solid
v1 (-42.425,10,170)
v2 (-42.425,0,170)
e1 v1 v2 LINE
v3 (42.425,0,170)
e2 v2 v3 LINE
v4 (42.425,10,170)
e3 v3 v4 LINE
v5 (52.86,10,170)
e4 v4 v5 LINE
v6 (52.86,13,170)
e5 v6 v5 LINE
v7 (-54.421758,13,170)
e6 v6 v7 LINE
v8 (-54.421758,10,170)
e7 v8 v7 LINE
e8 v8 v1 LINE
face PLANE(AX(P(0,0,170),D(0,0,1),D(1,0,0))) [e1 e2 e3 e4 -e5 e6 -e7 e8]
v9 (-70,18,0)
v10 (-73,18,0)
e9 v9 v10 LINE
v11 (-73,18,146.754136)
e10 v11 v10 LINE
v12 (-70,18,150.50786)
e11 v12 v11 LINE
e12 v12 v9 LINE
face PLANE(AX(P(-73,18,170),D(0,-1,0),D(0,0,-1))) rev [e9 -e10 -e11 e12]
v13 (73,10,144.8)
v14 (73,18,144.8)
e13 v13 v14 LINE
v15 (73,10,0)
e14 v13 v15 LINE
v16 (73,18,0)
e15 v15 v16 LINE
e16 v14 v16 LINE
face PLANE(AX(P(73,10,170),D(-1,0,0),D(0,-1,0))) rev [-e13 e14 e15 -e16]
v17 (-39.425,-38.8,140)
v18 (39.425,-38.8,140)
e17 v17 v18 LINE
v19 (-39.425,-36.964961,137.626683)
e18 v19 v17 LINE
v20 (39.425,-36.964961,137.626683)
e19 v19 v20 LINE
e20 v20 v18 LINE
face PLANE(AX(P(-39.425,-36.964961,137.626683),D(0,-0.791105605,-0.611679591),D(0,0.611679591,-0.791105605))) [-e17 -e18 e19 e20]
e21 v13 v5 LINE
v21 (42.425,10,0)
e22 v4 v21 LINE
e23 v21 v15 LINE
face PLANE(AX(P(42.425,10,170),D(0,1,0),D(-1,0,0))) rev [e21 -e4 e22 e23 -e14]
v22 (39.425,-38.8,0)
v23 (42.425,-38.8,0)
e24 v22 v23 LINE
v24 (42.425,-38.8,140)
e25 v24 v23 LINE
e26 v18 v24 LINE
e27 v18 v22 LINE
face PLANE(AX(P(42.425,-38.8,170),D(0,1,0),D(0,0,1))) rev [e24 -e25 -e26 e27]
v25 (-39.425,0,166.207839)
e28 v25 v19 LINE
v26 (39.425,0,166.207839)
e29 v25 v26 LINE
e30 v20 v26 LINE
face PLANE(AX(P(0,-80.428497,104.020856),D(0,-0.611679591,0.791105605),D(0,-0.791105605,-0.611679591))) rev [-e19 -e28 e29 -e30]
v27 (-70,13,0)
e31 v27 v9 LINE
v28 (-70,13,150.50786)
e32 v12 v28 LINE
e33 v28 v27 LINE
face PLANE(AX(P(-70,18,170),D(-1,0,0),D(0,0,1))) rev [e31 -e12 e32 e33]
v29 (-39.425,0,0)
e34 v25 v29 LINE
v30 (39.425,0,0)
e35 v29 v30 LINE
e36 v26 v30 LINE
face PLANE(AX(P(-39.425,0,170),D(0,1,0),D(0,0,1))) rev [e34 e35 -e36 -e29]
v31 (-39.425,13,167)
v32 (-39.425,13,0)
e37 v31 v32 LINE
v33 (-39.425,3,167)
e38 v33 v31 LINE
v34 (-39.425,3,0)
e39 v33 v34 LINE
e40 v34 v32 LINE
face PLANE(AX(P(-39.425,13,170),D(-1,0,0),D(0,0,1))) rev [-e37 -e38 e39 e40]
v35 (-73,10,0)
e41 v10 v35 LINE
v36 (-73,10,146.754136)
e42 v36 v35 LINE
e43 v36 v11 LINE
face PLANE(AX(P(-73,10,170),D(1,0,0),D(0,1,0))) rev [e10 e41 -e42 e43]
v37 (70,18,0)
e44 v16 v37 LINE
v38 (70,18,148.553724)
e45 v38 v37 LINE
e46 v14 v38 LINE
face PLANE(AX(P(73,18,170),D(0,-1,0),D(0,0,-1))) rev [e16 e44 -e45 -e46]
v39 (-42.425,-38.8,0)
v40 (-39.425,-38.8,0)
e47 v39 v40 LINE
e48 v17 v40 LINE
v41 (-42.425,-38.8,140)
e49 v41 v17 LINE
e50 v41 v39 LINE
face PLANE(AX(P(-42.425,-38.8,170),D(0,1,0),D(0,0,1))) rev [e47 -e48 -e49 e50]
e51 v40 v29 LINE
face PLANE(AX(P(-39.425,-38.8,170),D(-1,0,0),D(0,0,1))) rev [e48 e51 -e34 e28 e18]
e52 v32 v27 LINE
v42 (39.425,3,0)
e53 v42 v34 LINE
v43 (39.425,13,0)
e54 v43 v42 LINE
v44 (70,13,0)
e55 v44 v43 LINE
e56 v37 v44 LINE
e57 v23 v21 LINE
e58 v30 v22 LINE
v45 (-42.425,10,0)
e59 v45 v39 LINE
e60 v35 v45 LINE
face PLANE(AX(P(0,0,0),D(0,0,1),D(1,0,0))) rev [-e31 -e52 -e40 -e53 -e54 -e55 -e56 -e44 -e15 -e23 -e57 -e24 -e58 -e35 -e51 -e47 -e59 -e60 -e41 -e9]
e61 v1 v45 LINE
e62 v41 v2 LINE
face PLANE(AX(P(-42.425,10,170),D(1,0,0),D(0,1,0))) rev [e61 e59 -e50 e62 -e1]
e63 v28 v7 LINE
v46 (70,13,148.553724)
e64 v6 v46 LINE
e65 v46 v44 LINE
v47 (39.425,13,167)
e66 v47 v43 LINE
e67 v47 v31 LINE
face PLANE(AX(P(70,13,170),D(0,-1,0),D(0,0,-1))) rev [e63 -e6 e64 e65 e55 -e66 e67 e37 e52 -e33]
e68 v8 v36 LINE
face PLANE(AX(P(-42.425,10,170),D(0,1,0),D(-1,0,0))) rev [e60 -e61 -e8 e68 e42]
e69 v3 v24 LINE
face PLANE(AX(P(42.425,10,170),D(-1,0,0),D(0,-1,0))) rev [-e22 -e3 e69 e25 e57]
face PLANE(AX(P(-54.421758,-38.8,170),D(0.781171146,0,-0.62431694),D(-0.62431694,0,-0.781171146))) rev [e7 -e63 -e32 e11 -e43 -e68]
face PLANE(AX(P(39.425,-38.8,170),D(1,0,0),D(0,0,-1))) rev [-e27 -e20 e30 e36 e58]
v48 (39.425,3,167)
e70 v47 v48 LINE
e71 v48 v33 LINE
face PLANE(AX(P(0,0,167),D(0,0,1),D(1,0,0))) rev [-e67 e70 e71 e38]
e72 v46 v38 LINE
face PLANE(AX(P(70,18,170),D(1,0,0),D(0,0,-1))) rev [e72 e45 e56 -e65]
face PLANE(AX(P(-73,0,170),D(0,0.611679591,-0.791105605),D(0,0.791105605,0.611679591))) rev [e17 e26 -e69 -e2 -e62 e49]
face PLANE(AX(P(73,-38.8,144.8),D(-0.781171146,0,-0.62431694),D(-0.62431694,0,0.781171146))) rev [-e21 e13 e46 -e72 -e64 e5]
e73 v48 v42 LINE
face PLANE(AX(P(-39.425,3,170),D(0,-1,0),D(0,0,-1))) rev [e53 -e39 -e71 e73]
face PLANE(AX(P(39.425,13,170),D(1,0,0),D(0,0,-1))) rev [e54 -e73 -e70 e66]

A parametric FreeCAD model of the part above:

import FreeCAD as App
import Part
import Sketcher
from FreeCAD import Vector

doc = App.newDocument("Part")
body = doc.addObject("PartDesign::Body", "Body")

sketch1 = doc.addObject("Sketcher::SketchObject", "Sketch")
body.addObject(sketch1)
sketch1.AttachmentSupport = (doc.XY_Plane, [""])
sketch1.MapMode = "FlatFace"
sketch1.addGeometry([
    Part.LineSegment(Vector(-39.425, 0, 0), Vector(39.425, 0, 0)),
    Part.LineSegment(Vector(39.425, 0, 0), Vector(39.425, -38.8, 0)),
    Part.LineSegment(Vector(39.425, -38.8, 0), Vector(42.425, -38.8, 0)),
    Part.LineSegment(Vector(42.425, -38.8, 0), Vector(42.425, 10, 0)),
    Part.LineSegment(Vector(42.425, 10, 0), Vector(73, 10, 0)),
    Part.LineSegment(Vector(73, 10, 0), Vector(73, 18, 0)),
    Part.LineSegment(Vector(73, 18, 0), Vector(70, 18, 0)),
    Part.LineSegment(Vector(70, 18, 0), Vector(70, 13, 0)),
    Part.LineSegment(Vector(70, 13, 0), Vector(39.425, 13, 0)),
    Part.LineSegment(Vector(39.425, 13, 0), Vector(39.425, 3, 0)),
    Part.LineSegment(Vector(39.425, 3, 0), Vector(-39.425, 3, 0)),
    Part.LineSegment(Vector(-39.425, 3, 0), Vector(-39.425, 13, 0)),
    Part.LineSegment(Vector(-39.425, 13, 0), Vector(-70, 13, 0)),
    Part.LineSegment(Vector(-70, 13, 0), Vector(-70, 18, 0)),
    Part.LineSegment(Vector(-70, 18, 0), Vector(-73, 18, 0)),
    Part.LineSegment(Vector(-73, 18, 0), Vector(-73, 10, 0)),
    Part.LineSegment(Vector(-73, 10, 0), Vector(-42.425, 10, 0)),
    Part.LineSegment(Vector(-42.425, 10, 0), Vector(-42.425, -38.8, 0)),
    Part.LineSegment(Vector(-42.425, -38.8, 0), Vector(-39.425, -38.8, 0)),
    Part.LineSegment(Vector(-39.425, -38.8, 0), Vector(-39.425, 0, 0)),
], False)
sketch1.addConstraint([
    Sketcher.Constraint("Coincident", 0, 2, 1, 1),
    Sketcher.Constraint("Coincident", 1, 2, 2, 1),
    Sketcher.Constraint("Coincident", 2, 2, 3, 1),
    Sketcher.Constraint("Coincident", 3, 2, 4, 1),
    Sketcher.Constraint("Coincident", 4, 2, 5, 1),
    Sketcher.Constraint("Coincident", 5, 2, 6, 1),
    Sketcher.Constraint("Coincident", 6, 2, 7, 1),
    Sketcher.Constraint("Coincident", 7, 2, 8, 1),
    Sketcher.Constraint("Coincident", 8, 2, 9, 1),
    Sketcher.Constraint("Coincident", 9, 2, 10, 1),
    Sketcher.Constraint("Coincident", 10, 2, 11, 1),
    Sketcher.Constraint("Coincident", 11, 2, 12, 1),
    Sketcher.Constraint("Coincident", 12, 2, 13, 1),
    Sketcher.Constraint("Coincident", 13, 2, 14, 1),
    Sketcher.Constraint("Coincident", 14, 2, 15, 1),
    Sketcher.Constraint("Coincident", 15, 2, 16, 1),
    Sketcher.Constraint("Coincident", 16, 2, 17, 1),
    Sketcher.Constraint("Coincident", 17, 2, 18, 1),
    Sketcher.Constraint("Coincident", 18, 2, 19, 1),
    Sketcher.Constraint("Coincident", 19, 2, 0, 1),
    Sketcher.Constraint("Horizontal", 0),
    Sketcher.Constraint("Vertical", 1),
    Sketcher.Constraint("Horizontal", 2),
    Sketcher.Constraint("Vertical", 3),
    Sketcher.Constraint("Horizontal", 4),
    Sketcher.Constraint("Vertical", 5),
    Sketcher.Constraint("Horizontal", 6),
    Sketcher.Constraint("Vertical", 7),
    Sketcher.Constraint("Horizontal", 8),
    Sketcher.Constraint("Vertical", 9),
    Sketcher.Constraint("Horizontal", 10),
    Sketcher.Constraint("Vertical", 11),
    Sketcher.Constraint("Horizontal", 12),
    Sketcher.Constraint("Vertical", 13),
    Sketcher.Constraint("Horizontal", 14),
    Sketcher.Constraint("Vertical", 15),
    Sketcher.Constraint("Horizontal", 16),
    Sketcher.Constraint("Vertical", 17),
    Sketcher.Constraint("Horizontal", 18),
    Sketcher.Constraint("Vertical", 19),
    Sketcher.Constraint("Symmetric", 0, 2, 19, 2, -1, 1),
    Sketcher.Constraint("Symmetric", 8, 2, 11, 2, -2),
    Sketcher.Constraint("Symmetric", 6, 2, 13, 2, -2),
    Sketcher.Constraint("Symmetric", 4, 2, 15, 2, -2),
    Sketcher.Constraint("Symmetric", 2, 2, 17, 2, -2),
    Sketcher.Constraint("Vertical", 1, 2, 8, 2),
    Sketcher.Constraint("Equal", 2, 6),
    Sketcher.Constraint("DistanceX", 2, 1, 2, 2, 3.0),
    Sketcher.Constraint("DistanceY", 5, 1, 5, 2, 8.0),
    Sketcher.Constraint("DistanceY", 7, 2, 7, 1, 5.0),
    Sketcher.Constraint("DistanceY", 9, 2, 9, 1, 10.0),
    Sketcher.Constraint("DistanceY", 1, 2, 1, 1, 38.8),
    Sketcher.Constraint("DistanceY", 3, 1, 3, 2, 48.8),
    Sketcher.Constraint("DistanceX", -1, 1, 4, 2, 73.0),
    Sketcher.Constraint("DistanceX", 0, 1, 0, 2, 78.85),
])
pad1 = doc.addObject("PartDesign::Pad", "Pad")
body.addObject(pad1)
pad1.Profile = sketch1
pad1.Length = 170

sketch2 = doc.addObject("Sketcher::SketchObject", "Sketch001")
body.addObject(sketch2)
sketch2.AttachmentSupport = (doc.YZ_Plane, [""])
sketch2.MapMode = "FlatFace"
sketch2.addGeometry([
    Part.LineSegment(Vector(0, 170, 0), Vector(-38.8, 170, 0)),
    Part.LineSegment(Vector(-38.8, 170, 0), Vector(-38.8, 140, 0)),
    Part.LineSegment(Vector(-38.8, 140, 0), Vector(0, 170, 0)),
], False)
sketch2.addConstraint([
    Sketcher.Constraint("Coincident", 0, 2, 1, 1),
    Sketcher.Constraint("Coincident", 1, 2, 2, 1),
    Sketcher.Constraint("Coincident", 2, 2, 0, 1),
    Sketcher.Constraint("Horizontal", 0),
    Sketcher.Constraint("Vertical", 1),
    Sketcher.Constraint("PointOnObject", 2, 2, -2),
    Sketcher.Constraint("DistanceY", 1, 2, 1, 1, 30.0),
    Sketcher.Constraint("DistanceX", 0, 2, 0, 1, 38.8),
    Sketcher.Constraint("DistanceY", -1, 1, 0, 2, 170.0),
])
pocket1 = doc.addObject("PartDesign::Pocket", "Pocket")
body.addObject(pocket1)
pocket1.Profile = sketch2
pocket1.Type = "ThroughAll"
pocket1.Midplane = True

sketch3 = doc.addObject("Sketcher::SketchObject", "Sketch002")
body.addObject(sketch3)
sketch3.Placement = App.Placement(Vector(0, -82.263536, 106.394173), App.Rotation(Vector(1, 0, 0), Vector(0, 0.791105605, 0.611679591), Vector(0, -0.611679591, 0.791105605), "ZXY"))
sketch3.addGeometry([
    Part.LineSegment(Vector(-39.425, 103.985531, 0), Vector(-39.425, 54.940245, 0)),
    Part.LineSegment(Vector(-39.425, 54.940245, 0), Vector(39.425, 54.940245, 0)),
    Part.LineSegment(Vector(39.425, 54.940245, 0), Vector(39.425, 103.985531, 0)),
    Part.LineSegment(Vector(39.425, 103.985531, 0), Vector(-39.425, 103.985531, 0)),
], False)
sketch3.addConstraint([
    Sketcher.Constraint("Coincident", 0, 2, 1, 1),
    Sketcher.Constraint("Coincident", 1, 2, 2, 1),
    Sketcher.Constraint("Coincident", 2, 2, 3, 1),
    Sketcher.Constraint("Coincident", 3, 2, 0, 1),
    Sketcher.Constraint("Vertical", 0),
    Sketcher.Constraint("Horizontal", 1),
    Sketcher.Constraint("Vertical", 2),
    Sketcher.Constraint("Horizontal", 3),
    Sketcher.Constraint("DistanceX", 1, 1, 1, 2, 78.85),
    Sketcher.Constraint("DistanceX", 0, 2, -1, 1, 39.425),
    Sketcher.Constraint("DistanceY", 0, 2, 0, 1, 49.045285),
    Sketcher.Constraint("DistanceY", -1, 1, 2, 2, 103.985531),
])
pad2 = doc.addObject("PartDesign::Pad", "Pad001")
body.addObject(pad2)
pad2.Profile = sketch3
pad2.Length = 3
pad2.Reversed = True

sketch4 = doc.addObject("Sketcher::SketchObject", "Sketch003")
body.addObject(sketch4)
sketch4.AttachmentSupport = (doc.XZ_Plane, [""])
sketch4.MapMode = "FlatFace"
sketch4.addGeometry([
    Part.LineSegment(Vector(-73, 146.754136, 0), Vector(-73, 170, 0)),
    Part.LineSegment(Vector(-73, 170, 0), Vector(-54.421758, 170, 0)),
    Part.LineSegment(Vector(-54.421758, 170, 0), Vector(-73, 146.754136, 0)),
    Part.LineSegment(Vector(52.86, 170, 0), Vector(73, 170, 0)),
    Part.LineSegment(Vector(73, 170, 0), Vector(73, 144.8, 0)),
    Part.LineSegment(Vector(73, 144.8, 0), Vector(52.86, 170, 0)),
], False)
sketch4.addConstraint([
    Sketcher.Constraint("Coincident", 0, 2, 1, 1),
    Sketcher.Constraint("Coincident", 1, 2, 2, 1),
    Sketcher.Constraint("Coincident", 2, 2, 0, 1),
    Sketcher.Constraint("Coincident", 3, 2, 4, 1),
    Sketcher.Constraint("Coincident", 4, 2, 5, 1),
    Sketcher.Constraint("Coincident", 5, 2, 3, 1),
    Sketcher.Constraint("Vertical", 0),
    Sketcher.Constraint("Horizontal", 1),
    Sketcher.Constraint("Horizontal", 3),
    Sketcher.Constraint("Vertical", 4),
    Sketcher.Constraint("Symmetric", 0, 2, 3, 2, -2),
    Sketcher.Constraint("DistanceY", 4, 2, 4, 1, 25.2),
    Sketcher.Constraint("DistanceX", 0, 2, -1, 1, 73.0),
    Sketcher.Constraint("DistanceY", -1, 1, 0, 2, 170.0),
    Sketcher.Constraint("DistanceX", 3, 1, 3, 2, 20.14),
    Sketcher.Constraint("Distance", 2, 29.75771),
    Sketcher.Constraint("DistanceX", 1, 1, 1, 2, 18.578242),
])
pocket2 = doc.addObject("PartDesign::Pocket", "Pocket001")
body.addObject(pocket2)
pocket2.Profile = sketch4
pocket2.Type = "ThroughAll"
pocket2.Midplane = True

sketch5 = doc.addObject("Sketcher::SketchObject", "Sketch004")
body.addObject(sketch5)
sketch5.AttachmentSupport = (doc.XY_Plane, [""])
sketch5.MapMode = "FlatFace"
sketch5.AttachmentOffset = App.Placement(Vector(0, 0, 170), App.Rotation())
sketch5.addGeometry([
    Part.LineSegment(Vector(-42.425, 13, 0), Vector(-42.425, 0, 0)),
    Part.LineSegment(Vector(-42.425, 0, 0), Vector(42.425, 0, 0)),
    Part.LineSegment(Vector(42.425, 0, 0), Vector(42.425, 13, 0)),
    Part.LineSegment(Vector(42.425, 13, 0), Vector(-42.425, 13, 0)),
], False)
sketch5.addConstraint([
    Sketcher.Constraint("Coincident", 0, 2, 1, 1),
    Sketcher.Constraint("Coincident", 1, 2, 2, 1),
    Sketcher.Constraint("Coincident", 2, 2, 3, 1),
    Sketcher.Constraint("Coincident", 3, 2, 0, 1),
    Sketcher.Constraint("Vertical", 0),
    Sketcher.Constraint("Horizontal", 1),
    Sketcher.Constraint("Vertical", 2),
    Sketcher.Constraint("Horizontal", 3),
    Sketcher.Constraint("Symmetric", 0, 2, 1, 2, -1, 1),
    Sketcher.Constraint("DistanceY", 0, 2, 0, 1, 13.0),
    Sketcher.Constraint("DistanceX", 1, 1, 1, 2, 84.85),
])
pad3 = doc.addObject("PartDesign::Pad", "Pad002")
body.addObject(pad3)
pad3.Profile = sketch5
pad3.Length = 3
pad3.Reversed = True

doc.recompute()
